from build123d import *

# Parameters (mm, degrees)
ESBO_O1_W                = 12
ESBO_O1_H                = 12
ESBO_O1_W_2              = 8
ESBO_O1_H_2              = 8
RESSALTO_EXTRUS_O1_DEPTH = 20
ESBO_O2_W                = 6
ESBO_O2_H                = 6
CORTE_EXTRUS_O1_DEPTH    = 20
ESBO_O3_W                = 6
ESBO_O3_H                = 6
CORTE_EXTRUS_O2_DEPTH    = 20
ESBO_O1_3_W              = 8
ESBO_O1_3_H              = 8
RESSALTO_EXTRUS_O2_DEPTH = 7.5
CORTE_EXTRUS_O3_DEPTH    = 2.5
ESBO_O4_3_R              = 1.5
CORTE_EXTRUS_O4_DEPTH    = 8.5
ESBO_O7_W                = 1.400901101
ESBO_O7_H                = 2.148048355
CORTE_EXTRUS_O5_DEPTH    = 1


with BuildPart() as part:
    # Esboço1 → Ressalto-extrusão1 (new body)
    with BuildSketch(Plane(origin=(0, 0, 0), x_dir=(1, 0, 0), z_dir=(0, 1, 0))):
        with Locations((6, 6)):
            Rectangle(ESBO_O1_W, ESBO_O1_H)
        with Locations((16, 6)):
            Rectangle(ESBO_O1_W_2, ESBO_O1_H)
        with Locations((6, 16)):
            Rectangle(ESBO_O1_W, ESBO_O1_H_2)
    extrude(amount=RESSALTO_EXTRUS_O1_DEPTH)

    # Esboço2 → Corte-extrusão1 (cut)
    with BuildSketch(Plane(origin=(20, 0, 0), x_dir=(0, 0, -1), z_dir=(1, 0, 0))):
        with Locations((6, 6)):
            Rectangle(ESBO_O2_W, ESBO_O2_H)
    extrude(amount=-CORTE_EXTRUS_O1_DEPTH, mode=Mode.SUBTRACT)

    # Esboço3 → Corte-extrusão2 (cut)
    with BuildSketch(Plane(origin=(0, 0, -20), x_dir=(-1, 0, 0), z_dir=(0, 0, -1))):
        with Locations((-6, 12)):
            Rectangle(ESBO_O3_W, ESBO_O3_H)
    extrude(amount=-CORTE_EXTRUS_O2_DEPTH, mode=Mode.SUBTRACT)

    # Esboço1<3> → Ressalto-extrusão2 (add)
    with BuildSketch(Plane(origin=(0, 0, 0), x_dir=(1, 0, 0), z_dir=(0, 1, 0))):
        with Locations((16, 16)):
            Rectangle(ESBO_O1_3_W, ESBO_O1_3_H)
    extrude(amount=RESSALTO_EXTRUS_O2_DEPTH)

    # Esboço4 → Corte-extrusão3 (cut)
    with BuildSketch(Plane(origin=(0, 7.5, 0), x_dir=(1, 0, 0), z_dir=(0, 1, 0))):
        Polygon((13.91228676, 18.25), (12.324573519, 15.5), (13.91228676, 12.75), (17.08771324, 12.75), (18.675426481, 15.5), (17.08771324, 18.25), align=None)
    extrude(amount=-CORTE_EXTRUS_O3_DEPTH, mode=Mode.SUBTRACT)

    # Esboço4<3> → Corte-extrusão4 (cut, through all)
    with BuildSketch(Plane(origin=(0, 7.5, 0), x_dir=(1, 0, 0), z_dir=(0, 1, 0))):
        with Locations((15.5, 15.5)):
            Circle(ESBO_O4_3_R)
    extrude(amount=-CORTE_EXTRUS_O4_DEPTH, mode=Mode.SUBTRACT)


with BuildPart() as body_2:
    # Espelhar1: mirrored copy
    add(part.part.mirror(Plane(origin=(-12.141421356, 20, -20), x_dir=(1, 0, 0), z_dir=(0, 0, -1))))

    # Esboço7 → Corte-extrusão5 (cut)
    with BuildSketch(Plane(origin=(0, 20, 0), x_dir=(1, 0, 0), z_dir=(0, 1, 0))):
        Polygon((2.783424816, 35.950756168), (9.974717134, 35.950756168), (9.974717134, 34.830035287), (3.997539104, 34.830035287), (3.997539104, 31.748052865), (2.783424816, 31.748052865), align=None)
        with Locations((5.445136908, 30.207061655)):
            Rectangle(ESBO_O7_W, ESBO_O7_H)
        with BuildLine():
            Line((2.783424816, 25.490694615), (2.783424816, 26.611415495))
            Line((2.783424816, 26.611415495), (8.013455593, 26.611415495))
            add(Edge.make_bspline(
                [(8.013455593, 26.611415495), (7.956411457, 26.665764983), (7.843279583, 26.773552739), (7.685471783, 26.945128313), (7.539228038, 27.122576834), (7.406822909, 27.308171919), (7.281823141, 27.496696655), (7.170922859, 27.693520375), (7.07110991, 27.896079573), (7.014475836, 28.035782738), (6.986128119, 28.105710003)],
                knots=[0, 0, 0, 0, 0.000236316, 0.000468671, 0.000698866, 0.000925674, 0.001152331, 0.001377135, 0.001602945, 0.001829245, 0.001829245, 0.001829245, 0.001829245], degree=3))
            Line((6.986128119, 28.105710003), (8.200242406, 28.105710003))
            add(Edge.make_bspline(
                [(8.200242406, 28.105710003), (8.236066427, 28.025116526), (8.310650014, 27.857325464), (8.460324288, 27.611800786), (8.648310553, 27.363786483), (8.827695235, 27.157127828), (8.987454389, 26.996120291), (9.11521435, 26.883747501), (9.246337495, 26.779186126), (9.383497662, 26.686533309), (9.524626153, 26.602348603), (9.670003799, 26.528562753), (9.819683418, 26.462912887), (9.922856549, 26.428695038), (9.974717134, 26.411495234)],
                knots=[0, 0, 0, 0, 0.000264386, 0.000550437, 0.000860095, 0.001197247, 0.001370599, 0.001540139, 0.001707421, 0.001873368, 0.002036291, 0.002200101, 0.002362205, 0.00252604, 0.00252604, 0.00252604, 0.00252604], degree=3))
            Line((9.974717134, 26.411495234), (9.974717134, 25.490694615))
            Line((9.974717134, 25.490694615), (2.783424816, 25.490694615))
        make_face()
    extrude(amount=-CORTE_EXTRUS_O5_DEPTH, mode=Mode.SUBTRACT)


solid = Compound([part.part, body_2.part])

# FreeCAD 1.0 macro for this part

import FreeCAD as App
import Part
import Sketcher
Q = App.Units.Quantity

doc = App.newDocument("Part")
body = doc.addObject("PartDesign::Body", "Body")

# Sketch on XZ plane
sketch1 = body.newObject("Sketcher::SketchObject", "Sketch")
sketch1.AttachmentSupport = (doc.getObject("XZ_Plane"), [""])
sketch1.MapMode = "FlatFace"
sketch1.addGeometry(Part.LineSegment(App.Vector(0, 0, 0), App.Vector(20, 0, 0)), False)
sketch1.addGeometry(Part.LineSegment(App.Vector(20, 0, 0), App.Vector(20, -12, 0)), False)
sketch1.addGeometry(Part.LineSegment(App.Vector(20, -12, 0), App.Vector(12, -12, 0)), False)
sketch1.addGeometry(Part.LineSegment(App.Vector(12, -12, 0), App.Vector(12, -20, 0)), False)
sketch1.addGeometry(Part.LineSegment(App.Vector(12, -20, 0), App.Vector(0, -20, 0)), False)
sketch1.addGeometry(Part.LineSegment(App.Vector(0, -20, 0), App.Vector(0, 0, 0)), False)
sketch1.addConstraint(Sketcher.Constraint("Coincident", 0, 2, 1, 1))
sketch1.addConstraint(Sketcher.Constraint("Coincident", 1, 2, 2, 1))
sketch1.addConstraint(Sketcher.Constraint("Coincident", 2, 2, 3, 1))
sketch1.addConstraint(Sketcher.Constraint("Coincident", 3, 2, 4, 1))
sketch1.addConstraint(Sketcher.Constraint("Coincident", 4, 2, 5, 1))
sketch1.addConstraint(Sketcher.Constraint("Coincident", 5, 2, 0, 1))
sketch1.addConstraint(Sketcher.Constraint("Horizontal", 0))
sketch1.addConstraint(Sketcher.Constraint("Vertical", 1))
sketch1.addConstraint(Sketcher.Constraint("Horizontal", 2))
sketch1.addConstraint(Sketcher.Constraint("Vertical", 3))
sketch1.addConstraint(Sketcher.Constraint("Horizontal", 4))
sketch1.addConstraint(Sketcher.Constraint("Vertical", 5))
sketch1.addConstraint(Sketcher.Constraint("Coincident", 5, 2, -1, 1))
sketch1.addConstraint(Sketcher.Constraint("Equal", 4, 1))
sketch1.addConstraint(Sketcher.Constraint("Equal", 2, 3))
sketch1.addConstraint(Sketcher.Constraint("DistanceX", 0, 1, 0, 2, 20.0))
sketch1.addConstraint(Sketcher.Constraint("DistanceX", 2, 2, 2, 1, 8.0))
pad1 = body.newObject("PartDesign::Pad", "Pad")
pad1.Profile = sketch1
pad1.Length = 20
pad1.Reversed = True

# Sketch on YZ plane
sketch2 = body.newObject("Sketcher::SketchObject", "Sketch001")
sketch2.AttachmentSupport = (doc.getObject("YZ_Plane"), [""])
sketch2.MapMode = "FlatFace"
sketch2.AttachmentOffset = App.Placement(App.Vector(0, 0, 20), App.Rotation())
sketch2.addGeometry(Part.LineSegment(App.Vector(9, -3, 0), App.Vector(3, -3, 0)), False)
sketch2.addGeometry(Part.LineSegment(App.Vector(3, -3, 0), App.Vector(3, -9, 0)), False)
sketch2.addGeometry(Part.LineSegment(App.Vector(3, -9, 0), App.Vector(9, -9, 0)), False)
sketch2.addGeometry(Part.LineSegment(App.Vector(9, -9, 0), App.Vector(9, -3, 0)), False)
sketch2.addConstraint(Sketcher.Constraint("Coincident", 0, 2, 1, 1))
sketch2.addConstraint(Sketcher.Constraint("Coincident", 1, 2, 2, 1))
sketch2.addConstraint(Sketcher.Constraint("Coincident", 2, 2, 3, 1))
sketch2.addConstraint(Sketcher.Constraint("Coincident", 3, 2, 0, 1))
sketch2.addConstraint(Sketcher.Constraint("Horizontal", 0))
sketch2.addConstraint(Sketcher.Constraint("Vertical", 1))
sketch2.addConstraint(Sketcher.Constraint("Horizontal", 2))
sketch2.addConstraint(Sketcher.Constraint("Vertical", 3))
sketch2.addConstraint(Sketcher.Constraint("Equal", 2, 1))
sketch2.addConstraint(Sketcher.Constraint("DistanceX", 0, 2, 0, 1, 6.0))
sketch2.addConstraint(Sketcher.Constraint("DistanceX", -1, 1, 0, 2, 3.0))
sketch2.addConstraint(Sketcher.Constraint("DistanceY", 0, 2, -1, 1, 3.0))
pocket1 = body.newObject("PartDesign::Pocket", "Pocket")
pocket1.Profile = sketch2
pocket1.Length = 20

# Sketch on XY plane
sketch3 = body.newObject("Sketcher::SketchObject", "Sketch002")
sketch3.AttachmentSupport = (doc.getObject("XY_Plane"), [""])
sketch3.MapMode = "FlatFace"
sketch3.AttachmentOffset = App.Placement(App.Vector(0, 0, -20), App.Rotation())
sketch3.addGeometry(Part.LineSegment(App.Vector(9, 15, 0), App.Vector(9, 9, 0)), False)
sketch3.addGeometry(Part.LineSegment(App.Vector(9, 9, 0), App.Vector(3, 9, 0)), False)
sketch3.addGeometry(Part.LineSegment(App.Vector(3, 9, 0), App.Vector(3, 15, 0)), False)
sketch3.addGeometry(Part.LineSegment(App.Vector(3, 15, 0), App.Vector(9, 15, 0)), False)
sketch3.addConstraint(Sketcher.Constraint("Coincident", 0, 2, 1, 1))
sketch3.addConstraint(Sketcher.Constraint("Coincident", 1, 2, 2, 1))
sketch3.addConstraint(Sketcher.Constraint("Coincident", 2, 2, 3, 1))
sketch3.addConstraint(Sketcher.Constraint("Coincident", 3, 2, 0, 1))
sketch3.addConstraint(Sketcher.Constraint("Vertical", 0))
sketch3.addConstraint(Sketcher.Constraint("Horizontal", 1))
sketch3.addConstraint(Sketcher.Constraint("Vertical", 2))
sketch3.addConstraint(Sketcher.Constraint("Horizontal", 3))
sketch3.addConstraint(Sketcher.Constraint("Equal", 3, 0))
sketch3.addConstraint(Sketcher.Constraint("DistanceX", 1, 2, 1, 1, 6.0))
sketch3.addConstraint(Sketcher.Constraint("DistanceX", -1, 1, 0, 2, 9.0))
sketch3.addConstraint(Sketcher.Constraint("DistanceY", -1, 1, 0, 2, 9.0))
pocket2 = body.newObject("PartDesign::Pocket", "Pocket001")
pocket2.Profile = sketch3
pocket2.Length = 20
pocket2.Reversed = True

# Sketch on XZ plane
sketch4 = body.newObject("Sketcher::SketchObject", "Sketch003")
sketch4.AttachmentSupport = (doc.getObject("XZ_Plane"), [""])
sketch4.MapMode = "FlatFace"
sketch4.addGeometry(Part.LineSegment(App.Vector(12, -20, 0), App.Vector(12, -12, 0)), False)
sketch4.addGeometry(Part.LineSegment(App.Vector(12, -12, 0), App.Vector(20, -12, 0)), False)
sketch4.addGeometry(Part.LineSegment(App.Vector(20, -12, 0), App.Vector(20, -20, 0)), False)
sketch4.addGeometry(Part.LineSegment(App.Vector(20, -20, 0), App.Vector(12, -20, 0)), False)
sketch4.addConstraint(Sketcher.Constraint("Coincident", 0, 2, 1, 1))
sketch4.addConstraint(Sketcher.Constraint("Coincident", 1, 2, 2, 1))
sketch4.addConstraint(Sketcher.Constraint("Coincident", 2, 2, 3, 1))
sketch4.addConstraint(Sketcher.Constraint("Coincident", 3, 2, 0, 1))
sketch4.addConstraint(Sketcher.Constraint("Vertical", 0))
sketch4.addConstraint(Sketcher.Constraint("Horizontal", 1))
sketch4.addConstraint(Sketcher.Constraint("Vertical", 2))
sketch4.addConstraint(Sketcher.Constraint("Horizontal", 3))
sketch4.addConstraint(Sketcher.Constraint("Equal", 3, 0))
sketch4.addConstraint(Sketcher.Constraint("DistanceX", 1, 1, 1, 2, 8.0))
sketch4.addConstraint(Sketcher.Constraint("DistanceX", -1, 1, 0, 2, 12.0))
sketch4.addConstraint(Sketcher.Constraint("DistanceY", 0, 2, -1, 1, 12.0))
pad2 = body.newObject("PartDesign::Pad", "Pad001")
pad2.Profile = sketch4
pad2.Length = 7.5
pad2.Reversed = True

# Sketch on XZ plane
sketch5 = body.newObject("Sketcher::SketchObject", "Sketch004")
sketch5.AttachmentSupport = (doc.getObject("XZ_Plane"), [""])
sketch5.MapMode = "FlatFace"
sketch5.AttachmentOffset = App.Placement(App.Vector(0, 0, -7.5), App.Rotation())
sketch5.addGeometry(Part.LineSegment(App.Vector(13.9, -18.2, 0), App.Vector(12.3, -15.5, 0)), False)
sketch5.addGeometry(Part.LineSegment(App.Vector(12.3, -15.5, 0), App.Vector(13.9, -12.8, 0)), False)
sketch5.addGeometry(Part.LineSegment(App.Vector(13.9, -12.8, 0), App.Vector(17.1, -12.8, 0)), False)
sketch5.addGeometry(Part.LineSegment(App.Vector(17.1, -12.8, 0), App.Vector(18.7, -15.5, 0)), False)
sketch5.addGeometry(Part.LineSegment(App.Vector(18.7, -15.5, 0), App.Vector(17.1, -18.2, 0)), False)
sketch5.addGeometry(Part.LineSegment(App.Vector(17.1, -18.2, 0), App.Vector(13.9, -18.2, 0)), False)
sketch5.addConstraint(Sketcher.Constraint("Coincident", 0, 2, 1, 1))
sketch5.addConstraint(Sketcher.Constraint("Coincident", 1, 2, 2, 1))
sketch5.addConstraint(Sketcher.Constraint("Coincident", 2, 2, 3, 1))
sketch5.addConstraint(Sketcher.Constraint("Coincident", 3, 2, 4, 1))
sketch5.addConstraint(Sketcher.Constraint("Coincident", 4, 2, 5, 1))
sketch5.addConstraint(Sketcher.Constraint("Coincident", 5, 2, 0, 1))
sketch5.addConstraint(Sketcher.Constraint("Horizontal", 2))
sketch5.addConstraint(Sketcher.Constraint("Horizontal", 5))
sketch5.addConstraint(Sketcher.Constraint("Parallel", 0, 3))
sketch5.addConstraint(Sketcher.Constraint("Parallel", 1, 4))
sketch5.addConstraint(Sketcher.Constraint("Horizontal", 0, 2, 3, 2))
sketch5.addConstraint(Sketcher.Constraint("Vertical", 2, 2, 4, 2))
sketch5.addConstraint(Sketcher.Constraint("Vertical", 1, 2, 5, 2))
sketch5.addConstraint(Sketcher.Constraint("Angle", 0, Q("120 deg")))
sketch5.addConstraint(Sketcher.Constraint("DistanceY", 0, 2, -1, 1, 15.5))
sketch5.addConstraint(Sketcher.Constraint("DistanceY", 4, 2, 2, 2, 5.5))
sketch5.addConstraint(Sketcher.Constraint("DistanceX", 2, 1, 2, 2, 3.175426))
sketch5.addConstraint(Sketcher.Constraint("DistanceX", -1, 1, 0, 2, 12.324574))
pocket3 = body.newObject("PartDesign::Pocket", "Pocket002")
pocket3.Profile = sketch5
pocket3.Length = 2.5
pocket3.Reversed = True

# Sketch on XZ plane
sketch6 = body.newObject("Sketcher::SketchObject", "Sketch005")
sketch6.AttachmentSupport = (doc.getObject("XZ_Plane"), [""])
sketch6.MapMode = "FlatFace"
sketch6.AttachmentOffset = App.Placement(App.Vector(0, 0, -7.5), App.Rotation())
sketch6.addGeometry(Part.Circle(App.Vector(15.5, -15.5, 0), App.Vector(0, 0, 1), 1.5), False)
sketch6.addConstraint(Sketcher.Constraint("Diameter", 0, 3.0))
sketch6.addConstraint(Sketcher.Constraint("DistanceX", -1, 1, 0, 3, 15.5))
sketch6.addConstraint(Sketcher.Constraint("DistanceY", 0, 3, -1, 1, 15.5))
pocket4 = body.newObject("PartDesign::Pocket", "Pocket003")
pocket4.Profile = sketch6
pocket4.Type = "ThroughAll"
pocket4.Reversed = True
body2 = doc.addObject("PartDesign::Body", "Body001")
doc.recompute()

mirroring = doc.addObject("Part::Mirroring", "Mirroring")
mirroring.Source = body
mirroring.Base = App.Vector(-12.141421, 20, -20)
mirroring.Normal = App.Vector(0, 0, -1)
body2.BaseFeature = mirroring
doc.recompute()

# Sketch on XZ plane
sketch7 = body2.newObject("Sketcher::SketchObject", "Sketch006")
sketch7.AttachmentSupport = (doc.getObject("XZ_Plane001"), [""])
sketch7.MapMode = "FlatFace"
sketch7.AttachmentOffset = App.Placement(App.Vector(0, 0, -20), App.Rotation())
sketch7.addGeometry(Part.LineSegment(App.Vector(9.974717, -35.950756, 0), App.Vector(2.783425, -35.950756, 0)), False)
sketch7.addGeometry(Part.LineSegment(App.Vector(2.783425, -35.950756, 0), App.Vector(2.783425, -31.748053, 0)), False)
sketch7.addGeometry(Part.LineSegment(App.Vector(2.783425, -31.748053, 0), App.Vector(3.997539, -31.748053, 0)), False)
sketch7.addGeometry(Part.LineSegment(App.Vector(3.997539, -31.748053, 0), App.Vector(3.997539, -34.830035, 0)), False)
sketch7.addGeometry(Part.LineSegment(App.Vector(3.997539, -34.830035, 0), App.Vector(9.974717, -34.830035, 0)), False)
sketch7.addGeometry(Part.LineSegment(App.Vector(9.974717, -34.830035, 0), App.Vector(9.974717, -35.950756, 0)), False)
sketch7.addGeometry(Part.LineSegment(App.Vector(4.744686, -31.281086, 0), App.Vector(4.744686, -29.133037, 0)), False)
sketch7.addGeometry(Part.LineSegment(App.Vector(4.744686, -29.133037, 0), App.Vector(6.145587, -29.133037, 0)), False)
sketch7.addGeometry(Part.LineSegment(App.Vector(6.145587, -29.133037, 0), App.Vector(6.145587, -31.281086, 0)), False)
sketch7.addGeometry(Part.LineSegment(App.Vector(6.145587, -31.281086, 0), App.Vector(4.744686, -31.281086, 0)), False)
sketch7.addGeometry(Part.LineSegment(App.Vector(2.783425, -26.611415, 0), App.Vector(2.783425, -25.490695, 0)), False)
sketch7.addGeometry(Part.LineSegment(App.Vector(2.783425, -25.490695, 0), App.Vector(9.974717, -25.490695, 0)), False)
sketch7.addGeometry(Part.LineSegment(App.Vector(9.974717, -25.490695, 0), App.Vector(9.974717, -26.411495, 0)), False)
sketch7.addGeometry(Part.BSplineCurve([App.Vector(8.200242, -28.10571, 0), App.Vector(8.236066, -28.025117, 0), App.Vector(8.31065, -27.857325, 0), App.Vector(8.460324, -27.611801, 0), App.Vector(8.648311, -27.363786, 0), App.Vector(8.827695, -27.157128, 0), App.Vector(8.987454, -26.99612, 0), App.Vector(9.115214, -26.883748, 0), App.Vector(9.246337, -26.779186, 0), App.Vector(9.383498, -26.686533, 0), App.Vector(9.524626, -26.602349, 0), App.Vector(9.670004, -26.528563, 0), App.Vector(9.819683, -26.462913, 0), App.Vector(9.922857, -26.428695, 0), App.Vector(9.974717, -26.411495, 0)], [4, 1, 1, 1, 1, 1, 1, 1, 1, 1, 1, 1, 4], [0, 0.000264386, 0.000550437, 0.000860095, 0.001197247, 0.001370599, 0.001540139, 0.001707421, 0.001873368, 0.002036291, 0.002200101, 0.002362205, 0.00252604], False, 3, [1, 1, 1, 1, 1, 1, 1, 1, 1, 1, 1, 1, 1, 1, 1], False), False)
sketch7.addGeometry(Part.LineSegment(App.Vector(8.200242, -28.10571, 0), App.Vector(6.986128, -28.10571, 0)), False)
sketch7.addGeometry(Part.BSplineCurve([App.Vector(8.013456, -26.611415, 0), App.Vector(7.956411, -26.665765, 0), App.Vector(7.84328, -26.773553, 0), App.Vector(7.685472, -26.945128, 0), App.Vector(7.539228, -27.122577, 0), App.Vector(7.406823, -27.308172, 0), App.Vector(7.281823, -27.496697, 0), App.Vector(7.170923, -27.69352, 0), App.Vector(7.07111, -27.89608, 0), App.Vector(7.014476, -28.035783, 0), App.Vector(6.986128, -28.10571, 0)], [4, 1, 1, 1, 1, 1, 1, 1, 4], [0, 0.000236316, 0.000468671, 0.000698866, 0.000925674, 0.001152331, 0.001377135, 0.001602945, 0.001829245], False, 3, [1, 1, 1, 1, 1, 1, 1, 1, 1, 1, 1], False), False)
sketch7.addGeometry(Part.LineSegment(App.Vector(8.013456, -26.611415, 0), App.Vector(2.783425, -26.611415, 0)), False)
sketch7.addConstraint(Sketcher.Constraint("Block", 13))
sketch7.addConstraint(Sketcher.Constraint("Block", 15))
sketch7.addConstraint(Sketcher.Constraint("Coincident", 0, 2, 1, 1))
sketch7.addConstraint(Sketcher.Constraint("Coincident", 1, 2, 2, 1))
sketch7.addConstraint(Sketcher.Constraint("Coincident", 2, 2, 3, 1))
sketch7.addConstraint(Sketcher.Constraint("Coincident", 3, 2, 4, 1))
sketch7.addConstraint(Sketcher.Constraint("Coincident", 4, 2, 5, 1))
sketch7.addConstraint(Sketcher.Constraint("Coincident", 5, 2, 0, 1))
sketch7.addConstraint(Sketcher.Constraint("Coincident", 6, 2, 7, 1))
sketch7.addConstraint(Sketcher.Constraint("Coincident", 7, 2, 8, 1))
sketch7.addConstraint(Sketcher.Constraint("Coincident", 8, 2, 9, 1))
sketch7.addConstraint(Sketcher.Constraint("Coincident", 9, 2, 6, 1))
sketch7.addConstraint(Sketcher.Constraint("Coincident", 10, 2, 11, 1))
sketch7.addConstraint(Sketcher.Constraint("Coincident", 11, 2, 12, 1))
sketch7.addConstraint(Sketcher.Constraint("Coincident", 12, 2, 13, 2))
sketch7.addConstraint(Sketcher.Constraint("Coincident", 13, 1, 14, 1))
sketch7.addConstraint(Sketcher.Constraint("Coincident", 14, 2, 15, 2))
sketch7.addConstraint(Sketcher.Constraint("Coincident", 15, 1, 16, 1))
sketch7.addConstraint(Sketcher.Constraint("Coincident", 16, 2, 10, 1))
sketch7.addConstraint(Sketcher.Constraint("Horizontal", 0))
sketch7.addConstraint(Sketcher.Constraint("Vertical", 1))
sketch7.addConstraint(Sketcher.Constraint("Horizontal", 2))
sketch7.addConstraint(Sketcher.Constraint("Vertical", 3))
sketch7.addConstraint(Sketcher.Constraint("Horizontal", 4))
sketch7.addConstraint(Sketcher.Constraint("Vertical", 5))
sketch7.addConstraint(Sketcher.Constraint("Vertical", 6))
sketch7.addConstraint(Sketcher.Constraint("Horizontal", 7))
sketch7.addConstraint(Sketcher.Constraint("Vertical", 8))
sketch7.addConstraint(Sketcher.Constraint("Horizontal", 9))
sketch7.addConstraint(Sketcher.Constraint("Vertical", 10))
sketch7.addConstraint(Sketcher.Constraint("Horizontal", 11))
sketch7.addConstraint(Sketcher.Constraint("Vertical", 12))
sketch7.addConstraint(Sketcher.Constraint("Horizontal", 16))
sketch7.addConstraint(Sketcher.Constraint("DistanceX", 7, 1, 7, 2, 1.400901))
sketch7.addConstraint(Sketcher.Constraint("DistanceY", 12, 2, 12, 1, 0.920801))
sketch7.addConstraint(Sketcher.Constraint("DistanceX", 4, 1, 4, 2, 5.977178))
sketch7.addConstraint(Sketcher.Constraint("DistanceX", 16, 2, 16, 1, 5.230031))
sketch7.addConstraint(Sketcher.Constraint("DistanceY", 5, 2, 5, 1, 1.120721))
sketch7.addConstraint(Sketcher.Constraint("DistanceY", 6, 1, 6, 2, 2.148048))
sketch7.addConstraint(Sketcher.Constraint("DistanceX", 0, 2, 0, 1, 7.191292))
sketch7.addConstraint(Sketcher.Constraint("DistanceY", 1, 1, 1, 2, 4.202703))
sketch7.addConstraint(Sketcher.Constraint("DistanceX", -1, 1, 2, 2, 3.997539))
sketch7.addConstraint(Sketcher.Constraint("DistanceX", 1, 2, 6, 2, 1.961262))
sketch7.addConstraint(Sketcher.Constraint("DistanceY", 0, 2, 6, 2, 6.817719))
sketch7.addConstraint(Sketcher.Constraint("DistanceY", 9, 2, 10, 2, 5.790391))
pocket5 = body2.newObject("PartDesign::Pocket", "Pocket004")
pocket5.Profile = sketch7
pocket5.Length = 1
pocket5.Reversed = True
mirroring.Visibility = False

doc.recompute()
